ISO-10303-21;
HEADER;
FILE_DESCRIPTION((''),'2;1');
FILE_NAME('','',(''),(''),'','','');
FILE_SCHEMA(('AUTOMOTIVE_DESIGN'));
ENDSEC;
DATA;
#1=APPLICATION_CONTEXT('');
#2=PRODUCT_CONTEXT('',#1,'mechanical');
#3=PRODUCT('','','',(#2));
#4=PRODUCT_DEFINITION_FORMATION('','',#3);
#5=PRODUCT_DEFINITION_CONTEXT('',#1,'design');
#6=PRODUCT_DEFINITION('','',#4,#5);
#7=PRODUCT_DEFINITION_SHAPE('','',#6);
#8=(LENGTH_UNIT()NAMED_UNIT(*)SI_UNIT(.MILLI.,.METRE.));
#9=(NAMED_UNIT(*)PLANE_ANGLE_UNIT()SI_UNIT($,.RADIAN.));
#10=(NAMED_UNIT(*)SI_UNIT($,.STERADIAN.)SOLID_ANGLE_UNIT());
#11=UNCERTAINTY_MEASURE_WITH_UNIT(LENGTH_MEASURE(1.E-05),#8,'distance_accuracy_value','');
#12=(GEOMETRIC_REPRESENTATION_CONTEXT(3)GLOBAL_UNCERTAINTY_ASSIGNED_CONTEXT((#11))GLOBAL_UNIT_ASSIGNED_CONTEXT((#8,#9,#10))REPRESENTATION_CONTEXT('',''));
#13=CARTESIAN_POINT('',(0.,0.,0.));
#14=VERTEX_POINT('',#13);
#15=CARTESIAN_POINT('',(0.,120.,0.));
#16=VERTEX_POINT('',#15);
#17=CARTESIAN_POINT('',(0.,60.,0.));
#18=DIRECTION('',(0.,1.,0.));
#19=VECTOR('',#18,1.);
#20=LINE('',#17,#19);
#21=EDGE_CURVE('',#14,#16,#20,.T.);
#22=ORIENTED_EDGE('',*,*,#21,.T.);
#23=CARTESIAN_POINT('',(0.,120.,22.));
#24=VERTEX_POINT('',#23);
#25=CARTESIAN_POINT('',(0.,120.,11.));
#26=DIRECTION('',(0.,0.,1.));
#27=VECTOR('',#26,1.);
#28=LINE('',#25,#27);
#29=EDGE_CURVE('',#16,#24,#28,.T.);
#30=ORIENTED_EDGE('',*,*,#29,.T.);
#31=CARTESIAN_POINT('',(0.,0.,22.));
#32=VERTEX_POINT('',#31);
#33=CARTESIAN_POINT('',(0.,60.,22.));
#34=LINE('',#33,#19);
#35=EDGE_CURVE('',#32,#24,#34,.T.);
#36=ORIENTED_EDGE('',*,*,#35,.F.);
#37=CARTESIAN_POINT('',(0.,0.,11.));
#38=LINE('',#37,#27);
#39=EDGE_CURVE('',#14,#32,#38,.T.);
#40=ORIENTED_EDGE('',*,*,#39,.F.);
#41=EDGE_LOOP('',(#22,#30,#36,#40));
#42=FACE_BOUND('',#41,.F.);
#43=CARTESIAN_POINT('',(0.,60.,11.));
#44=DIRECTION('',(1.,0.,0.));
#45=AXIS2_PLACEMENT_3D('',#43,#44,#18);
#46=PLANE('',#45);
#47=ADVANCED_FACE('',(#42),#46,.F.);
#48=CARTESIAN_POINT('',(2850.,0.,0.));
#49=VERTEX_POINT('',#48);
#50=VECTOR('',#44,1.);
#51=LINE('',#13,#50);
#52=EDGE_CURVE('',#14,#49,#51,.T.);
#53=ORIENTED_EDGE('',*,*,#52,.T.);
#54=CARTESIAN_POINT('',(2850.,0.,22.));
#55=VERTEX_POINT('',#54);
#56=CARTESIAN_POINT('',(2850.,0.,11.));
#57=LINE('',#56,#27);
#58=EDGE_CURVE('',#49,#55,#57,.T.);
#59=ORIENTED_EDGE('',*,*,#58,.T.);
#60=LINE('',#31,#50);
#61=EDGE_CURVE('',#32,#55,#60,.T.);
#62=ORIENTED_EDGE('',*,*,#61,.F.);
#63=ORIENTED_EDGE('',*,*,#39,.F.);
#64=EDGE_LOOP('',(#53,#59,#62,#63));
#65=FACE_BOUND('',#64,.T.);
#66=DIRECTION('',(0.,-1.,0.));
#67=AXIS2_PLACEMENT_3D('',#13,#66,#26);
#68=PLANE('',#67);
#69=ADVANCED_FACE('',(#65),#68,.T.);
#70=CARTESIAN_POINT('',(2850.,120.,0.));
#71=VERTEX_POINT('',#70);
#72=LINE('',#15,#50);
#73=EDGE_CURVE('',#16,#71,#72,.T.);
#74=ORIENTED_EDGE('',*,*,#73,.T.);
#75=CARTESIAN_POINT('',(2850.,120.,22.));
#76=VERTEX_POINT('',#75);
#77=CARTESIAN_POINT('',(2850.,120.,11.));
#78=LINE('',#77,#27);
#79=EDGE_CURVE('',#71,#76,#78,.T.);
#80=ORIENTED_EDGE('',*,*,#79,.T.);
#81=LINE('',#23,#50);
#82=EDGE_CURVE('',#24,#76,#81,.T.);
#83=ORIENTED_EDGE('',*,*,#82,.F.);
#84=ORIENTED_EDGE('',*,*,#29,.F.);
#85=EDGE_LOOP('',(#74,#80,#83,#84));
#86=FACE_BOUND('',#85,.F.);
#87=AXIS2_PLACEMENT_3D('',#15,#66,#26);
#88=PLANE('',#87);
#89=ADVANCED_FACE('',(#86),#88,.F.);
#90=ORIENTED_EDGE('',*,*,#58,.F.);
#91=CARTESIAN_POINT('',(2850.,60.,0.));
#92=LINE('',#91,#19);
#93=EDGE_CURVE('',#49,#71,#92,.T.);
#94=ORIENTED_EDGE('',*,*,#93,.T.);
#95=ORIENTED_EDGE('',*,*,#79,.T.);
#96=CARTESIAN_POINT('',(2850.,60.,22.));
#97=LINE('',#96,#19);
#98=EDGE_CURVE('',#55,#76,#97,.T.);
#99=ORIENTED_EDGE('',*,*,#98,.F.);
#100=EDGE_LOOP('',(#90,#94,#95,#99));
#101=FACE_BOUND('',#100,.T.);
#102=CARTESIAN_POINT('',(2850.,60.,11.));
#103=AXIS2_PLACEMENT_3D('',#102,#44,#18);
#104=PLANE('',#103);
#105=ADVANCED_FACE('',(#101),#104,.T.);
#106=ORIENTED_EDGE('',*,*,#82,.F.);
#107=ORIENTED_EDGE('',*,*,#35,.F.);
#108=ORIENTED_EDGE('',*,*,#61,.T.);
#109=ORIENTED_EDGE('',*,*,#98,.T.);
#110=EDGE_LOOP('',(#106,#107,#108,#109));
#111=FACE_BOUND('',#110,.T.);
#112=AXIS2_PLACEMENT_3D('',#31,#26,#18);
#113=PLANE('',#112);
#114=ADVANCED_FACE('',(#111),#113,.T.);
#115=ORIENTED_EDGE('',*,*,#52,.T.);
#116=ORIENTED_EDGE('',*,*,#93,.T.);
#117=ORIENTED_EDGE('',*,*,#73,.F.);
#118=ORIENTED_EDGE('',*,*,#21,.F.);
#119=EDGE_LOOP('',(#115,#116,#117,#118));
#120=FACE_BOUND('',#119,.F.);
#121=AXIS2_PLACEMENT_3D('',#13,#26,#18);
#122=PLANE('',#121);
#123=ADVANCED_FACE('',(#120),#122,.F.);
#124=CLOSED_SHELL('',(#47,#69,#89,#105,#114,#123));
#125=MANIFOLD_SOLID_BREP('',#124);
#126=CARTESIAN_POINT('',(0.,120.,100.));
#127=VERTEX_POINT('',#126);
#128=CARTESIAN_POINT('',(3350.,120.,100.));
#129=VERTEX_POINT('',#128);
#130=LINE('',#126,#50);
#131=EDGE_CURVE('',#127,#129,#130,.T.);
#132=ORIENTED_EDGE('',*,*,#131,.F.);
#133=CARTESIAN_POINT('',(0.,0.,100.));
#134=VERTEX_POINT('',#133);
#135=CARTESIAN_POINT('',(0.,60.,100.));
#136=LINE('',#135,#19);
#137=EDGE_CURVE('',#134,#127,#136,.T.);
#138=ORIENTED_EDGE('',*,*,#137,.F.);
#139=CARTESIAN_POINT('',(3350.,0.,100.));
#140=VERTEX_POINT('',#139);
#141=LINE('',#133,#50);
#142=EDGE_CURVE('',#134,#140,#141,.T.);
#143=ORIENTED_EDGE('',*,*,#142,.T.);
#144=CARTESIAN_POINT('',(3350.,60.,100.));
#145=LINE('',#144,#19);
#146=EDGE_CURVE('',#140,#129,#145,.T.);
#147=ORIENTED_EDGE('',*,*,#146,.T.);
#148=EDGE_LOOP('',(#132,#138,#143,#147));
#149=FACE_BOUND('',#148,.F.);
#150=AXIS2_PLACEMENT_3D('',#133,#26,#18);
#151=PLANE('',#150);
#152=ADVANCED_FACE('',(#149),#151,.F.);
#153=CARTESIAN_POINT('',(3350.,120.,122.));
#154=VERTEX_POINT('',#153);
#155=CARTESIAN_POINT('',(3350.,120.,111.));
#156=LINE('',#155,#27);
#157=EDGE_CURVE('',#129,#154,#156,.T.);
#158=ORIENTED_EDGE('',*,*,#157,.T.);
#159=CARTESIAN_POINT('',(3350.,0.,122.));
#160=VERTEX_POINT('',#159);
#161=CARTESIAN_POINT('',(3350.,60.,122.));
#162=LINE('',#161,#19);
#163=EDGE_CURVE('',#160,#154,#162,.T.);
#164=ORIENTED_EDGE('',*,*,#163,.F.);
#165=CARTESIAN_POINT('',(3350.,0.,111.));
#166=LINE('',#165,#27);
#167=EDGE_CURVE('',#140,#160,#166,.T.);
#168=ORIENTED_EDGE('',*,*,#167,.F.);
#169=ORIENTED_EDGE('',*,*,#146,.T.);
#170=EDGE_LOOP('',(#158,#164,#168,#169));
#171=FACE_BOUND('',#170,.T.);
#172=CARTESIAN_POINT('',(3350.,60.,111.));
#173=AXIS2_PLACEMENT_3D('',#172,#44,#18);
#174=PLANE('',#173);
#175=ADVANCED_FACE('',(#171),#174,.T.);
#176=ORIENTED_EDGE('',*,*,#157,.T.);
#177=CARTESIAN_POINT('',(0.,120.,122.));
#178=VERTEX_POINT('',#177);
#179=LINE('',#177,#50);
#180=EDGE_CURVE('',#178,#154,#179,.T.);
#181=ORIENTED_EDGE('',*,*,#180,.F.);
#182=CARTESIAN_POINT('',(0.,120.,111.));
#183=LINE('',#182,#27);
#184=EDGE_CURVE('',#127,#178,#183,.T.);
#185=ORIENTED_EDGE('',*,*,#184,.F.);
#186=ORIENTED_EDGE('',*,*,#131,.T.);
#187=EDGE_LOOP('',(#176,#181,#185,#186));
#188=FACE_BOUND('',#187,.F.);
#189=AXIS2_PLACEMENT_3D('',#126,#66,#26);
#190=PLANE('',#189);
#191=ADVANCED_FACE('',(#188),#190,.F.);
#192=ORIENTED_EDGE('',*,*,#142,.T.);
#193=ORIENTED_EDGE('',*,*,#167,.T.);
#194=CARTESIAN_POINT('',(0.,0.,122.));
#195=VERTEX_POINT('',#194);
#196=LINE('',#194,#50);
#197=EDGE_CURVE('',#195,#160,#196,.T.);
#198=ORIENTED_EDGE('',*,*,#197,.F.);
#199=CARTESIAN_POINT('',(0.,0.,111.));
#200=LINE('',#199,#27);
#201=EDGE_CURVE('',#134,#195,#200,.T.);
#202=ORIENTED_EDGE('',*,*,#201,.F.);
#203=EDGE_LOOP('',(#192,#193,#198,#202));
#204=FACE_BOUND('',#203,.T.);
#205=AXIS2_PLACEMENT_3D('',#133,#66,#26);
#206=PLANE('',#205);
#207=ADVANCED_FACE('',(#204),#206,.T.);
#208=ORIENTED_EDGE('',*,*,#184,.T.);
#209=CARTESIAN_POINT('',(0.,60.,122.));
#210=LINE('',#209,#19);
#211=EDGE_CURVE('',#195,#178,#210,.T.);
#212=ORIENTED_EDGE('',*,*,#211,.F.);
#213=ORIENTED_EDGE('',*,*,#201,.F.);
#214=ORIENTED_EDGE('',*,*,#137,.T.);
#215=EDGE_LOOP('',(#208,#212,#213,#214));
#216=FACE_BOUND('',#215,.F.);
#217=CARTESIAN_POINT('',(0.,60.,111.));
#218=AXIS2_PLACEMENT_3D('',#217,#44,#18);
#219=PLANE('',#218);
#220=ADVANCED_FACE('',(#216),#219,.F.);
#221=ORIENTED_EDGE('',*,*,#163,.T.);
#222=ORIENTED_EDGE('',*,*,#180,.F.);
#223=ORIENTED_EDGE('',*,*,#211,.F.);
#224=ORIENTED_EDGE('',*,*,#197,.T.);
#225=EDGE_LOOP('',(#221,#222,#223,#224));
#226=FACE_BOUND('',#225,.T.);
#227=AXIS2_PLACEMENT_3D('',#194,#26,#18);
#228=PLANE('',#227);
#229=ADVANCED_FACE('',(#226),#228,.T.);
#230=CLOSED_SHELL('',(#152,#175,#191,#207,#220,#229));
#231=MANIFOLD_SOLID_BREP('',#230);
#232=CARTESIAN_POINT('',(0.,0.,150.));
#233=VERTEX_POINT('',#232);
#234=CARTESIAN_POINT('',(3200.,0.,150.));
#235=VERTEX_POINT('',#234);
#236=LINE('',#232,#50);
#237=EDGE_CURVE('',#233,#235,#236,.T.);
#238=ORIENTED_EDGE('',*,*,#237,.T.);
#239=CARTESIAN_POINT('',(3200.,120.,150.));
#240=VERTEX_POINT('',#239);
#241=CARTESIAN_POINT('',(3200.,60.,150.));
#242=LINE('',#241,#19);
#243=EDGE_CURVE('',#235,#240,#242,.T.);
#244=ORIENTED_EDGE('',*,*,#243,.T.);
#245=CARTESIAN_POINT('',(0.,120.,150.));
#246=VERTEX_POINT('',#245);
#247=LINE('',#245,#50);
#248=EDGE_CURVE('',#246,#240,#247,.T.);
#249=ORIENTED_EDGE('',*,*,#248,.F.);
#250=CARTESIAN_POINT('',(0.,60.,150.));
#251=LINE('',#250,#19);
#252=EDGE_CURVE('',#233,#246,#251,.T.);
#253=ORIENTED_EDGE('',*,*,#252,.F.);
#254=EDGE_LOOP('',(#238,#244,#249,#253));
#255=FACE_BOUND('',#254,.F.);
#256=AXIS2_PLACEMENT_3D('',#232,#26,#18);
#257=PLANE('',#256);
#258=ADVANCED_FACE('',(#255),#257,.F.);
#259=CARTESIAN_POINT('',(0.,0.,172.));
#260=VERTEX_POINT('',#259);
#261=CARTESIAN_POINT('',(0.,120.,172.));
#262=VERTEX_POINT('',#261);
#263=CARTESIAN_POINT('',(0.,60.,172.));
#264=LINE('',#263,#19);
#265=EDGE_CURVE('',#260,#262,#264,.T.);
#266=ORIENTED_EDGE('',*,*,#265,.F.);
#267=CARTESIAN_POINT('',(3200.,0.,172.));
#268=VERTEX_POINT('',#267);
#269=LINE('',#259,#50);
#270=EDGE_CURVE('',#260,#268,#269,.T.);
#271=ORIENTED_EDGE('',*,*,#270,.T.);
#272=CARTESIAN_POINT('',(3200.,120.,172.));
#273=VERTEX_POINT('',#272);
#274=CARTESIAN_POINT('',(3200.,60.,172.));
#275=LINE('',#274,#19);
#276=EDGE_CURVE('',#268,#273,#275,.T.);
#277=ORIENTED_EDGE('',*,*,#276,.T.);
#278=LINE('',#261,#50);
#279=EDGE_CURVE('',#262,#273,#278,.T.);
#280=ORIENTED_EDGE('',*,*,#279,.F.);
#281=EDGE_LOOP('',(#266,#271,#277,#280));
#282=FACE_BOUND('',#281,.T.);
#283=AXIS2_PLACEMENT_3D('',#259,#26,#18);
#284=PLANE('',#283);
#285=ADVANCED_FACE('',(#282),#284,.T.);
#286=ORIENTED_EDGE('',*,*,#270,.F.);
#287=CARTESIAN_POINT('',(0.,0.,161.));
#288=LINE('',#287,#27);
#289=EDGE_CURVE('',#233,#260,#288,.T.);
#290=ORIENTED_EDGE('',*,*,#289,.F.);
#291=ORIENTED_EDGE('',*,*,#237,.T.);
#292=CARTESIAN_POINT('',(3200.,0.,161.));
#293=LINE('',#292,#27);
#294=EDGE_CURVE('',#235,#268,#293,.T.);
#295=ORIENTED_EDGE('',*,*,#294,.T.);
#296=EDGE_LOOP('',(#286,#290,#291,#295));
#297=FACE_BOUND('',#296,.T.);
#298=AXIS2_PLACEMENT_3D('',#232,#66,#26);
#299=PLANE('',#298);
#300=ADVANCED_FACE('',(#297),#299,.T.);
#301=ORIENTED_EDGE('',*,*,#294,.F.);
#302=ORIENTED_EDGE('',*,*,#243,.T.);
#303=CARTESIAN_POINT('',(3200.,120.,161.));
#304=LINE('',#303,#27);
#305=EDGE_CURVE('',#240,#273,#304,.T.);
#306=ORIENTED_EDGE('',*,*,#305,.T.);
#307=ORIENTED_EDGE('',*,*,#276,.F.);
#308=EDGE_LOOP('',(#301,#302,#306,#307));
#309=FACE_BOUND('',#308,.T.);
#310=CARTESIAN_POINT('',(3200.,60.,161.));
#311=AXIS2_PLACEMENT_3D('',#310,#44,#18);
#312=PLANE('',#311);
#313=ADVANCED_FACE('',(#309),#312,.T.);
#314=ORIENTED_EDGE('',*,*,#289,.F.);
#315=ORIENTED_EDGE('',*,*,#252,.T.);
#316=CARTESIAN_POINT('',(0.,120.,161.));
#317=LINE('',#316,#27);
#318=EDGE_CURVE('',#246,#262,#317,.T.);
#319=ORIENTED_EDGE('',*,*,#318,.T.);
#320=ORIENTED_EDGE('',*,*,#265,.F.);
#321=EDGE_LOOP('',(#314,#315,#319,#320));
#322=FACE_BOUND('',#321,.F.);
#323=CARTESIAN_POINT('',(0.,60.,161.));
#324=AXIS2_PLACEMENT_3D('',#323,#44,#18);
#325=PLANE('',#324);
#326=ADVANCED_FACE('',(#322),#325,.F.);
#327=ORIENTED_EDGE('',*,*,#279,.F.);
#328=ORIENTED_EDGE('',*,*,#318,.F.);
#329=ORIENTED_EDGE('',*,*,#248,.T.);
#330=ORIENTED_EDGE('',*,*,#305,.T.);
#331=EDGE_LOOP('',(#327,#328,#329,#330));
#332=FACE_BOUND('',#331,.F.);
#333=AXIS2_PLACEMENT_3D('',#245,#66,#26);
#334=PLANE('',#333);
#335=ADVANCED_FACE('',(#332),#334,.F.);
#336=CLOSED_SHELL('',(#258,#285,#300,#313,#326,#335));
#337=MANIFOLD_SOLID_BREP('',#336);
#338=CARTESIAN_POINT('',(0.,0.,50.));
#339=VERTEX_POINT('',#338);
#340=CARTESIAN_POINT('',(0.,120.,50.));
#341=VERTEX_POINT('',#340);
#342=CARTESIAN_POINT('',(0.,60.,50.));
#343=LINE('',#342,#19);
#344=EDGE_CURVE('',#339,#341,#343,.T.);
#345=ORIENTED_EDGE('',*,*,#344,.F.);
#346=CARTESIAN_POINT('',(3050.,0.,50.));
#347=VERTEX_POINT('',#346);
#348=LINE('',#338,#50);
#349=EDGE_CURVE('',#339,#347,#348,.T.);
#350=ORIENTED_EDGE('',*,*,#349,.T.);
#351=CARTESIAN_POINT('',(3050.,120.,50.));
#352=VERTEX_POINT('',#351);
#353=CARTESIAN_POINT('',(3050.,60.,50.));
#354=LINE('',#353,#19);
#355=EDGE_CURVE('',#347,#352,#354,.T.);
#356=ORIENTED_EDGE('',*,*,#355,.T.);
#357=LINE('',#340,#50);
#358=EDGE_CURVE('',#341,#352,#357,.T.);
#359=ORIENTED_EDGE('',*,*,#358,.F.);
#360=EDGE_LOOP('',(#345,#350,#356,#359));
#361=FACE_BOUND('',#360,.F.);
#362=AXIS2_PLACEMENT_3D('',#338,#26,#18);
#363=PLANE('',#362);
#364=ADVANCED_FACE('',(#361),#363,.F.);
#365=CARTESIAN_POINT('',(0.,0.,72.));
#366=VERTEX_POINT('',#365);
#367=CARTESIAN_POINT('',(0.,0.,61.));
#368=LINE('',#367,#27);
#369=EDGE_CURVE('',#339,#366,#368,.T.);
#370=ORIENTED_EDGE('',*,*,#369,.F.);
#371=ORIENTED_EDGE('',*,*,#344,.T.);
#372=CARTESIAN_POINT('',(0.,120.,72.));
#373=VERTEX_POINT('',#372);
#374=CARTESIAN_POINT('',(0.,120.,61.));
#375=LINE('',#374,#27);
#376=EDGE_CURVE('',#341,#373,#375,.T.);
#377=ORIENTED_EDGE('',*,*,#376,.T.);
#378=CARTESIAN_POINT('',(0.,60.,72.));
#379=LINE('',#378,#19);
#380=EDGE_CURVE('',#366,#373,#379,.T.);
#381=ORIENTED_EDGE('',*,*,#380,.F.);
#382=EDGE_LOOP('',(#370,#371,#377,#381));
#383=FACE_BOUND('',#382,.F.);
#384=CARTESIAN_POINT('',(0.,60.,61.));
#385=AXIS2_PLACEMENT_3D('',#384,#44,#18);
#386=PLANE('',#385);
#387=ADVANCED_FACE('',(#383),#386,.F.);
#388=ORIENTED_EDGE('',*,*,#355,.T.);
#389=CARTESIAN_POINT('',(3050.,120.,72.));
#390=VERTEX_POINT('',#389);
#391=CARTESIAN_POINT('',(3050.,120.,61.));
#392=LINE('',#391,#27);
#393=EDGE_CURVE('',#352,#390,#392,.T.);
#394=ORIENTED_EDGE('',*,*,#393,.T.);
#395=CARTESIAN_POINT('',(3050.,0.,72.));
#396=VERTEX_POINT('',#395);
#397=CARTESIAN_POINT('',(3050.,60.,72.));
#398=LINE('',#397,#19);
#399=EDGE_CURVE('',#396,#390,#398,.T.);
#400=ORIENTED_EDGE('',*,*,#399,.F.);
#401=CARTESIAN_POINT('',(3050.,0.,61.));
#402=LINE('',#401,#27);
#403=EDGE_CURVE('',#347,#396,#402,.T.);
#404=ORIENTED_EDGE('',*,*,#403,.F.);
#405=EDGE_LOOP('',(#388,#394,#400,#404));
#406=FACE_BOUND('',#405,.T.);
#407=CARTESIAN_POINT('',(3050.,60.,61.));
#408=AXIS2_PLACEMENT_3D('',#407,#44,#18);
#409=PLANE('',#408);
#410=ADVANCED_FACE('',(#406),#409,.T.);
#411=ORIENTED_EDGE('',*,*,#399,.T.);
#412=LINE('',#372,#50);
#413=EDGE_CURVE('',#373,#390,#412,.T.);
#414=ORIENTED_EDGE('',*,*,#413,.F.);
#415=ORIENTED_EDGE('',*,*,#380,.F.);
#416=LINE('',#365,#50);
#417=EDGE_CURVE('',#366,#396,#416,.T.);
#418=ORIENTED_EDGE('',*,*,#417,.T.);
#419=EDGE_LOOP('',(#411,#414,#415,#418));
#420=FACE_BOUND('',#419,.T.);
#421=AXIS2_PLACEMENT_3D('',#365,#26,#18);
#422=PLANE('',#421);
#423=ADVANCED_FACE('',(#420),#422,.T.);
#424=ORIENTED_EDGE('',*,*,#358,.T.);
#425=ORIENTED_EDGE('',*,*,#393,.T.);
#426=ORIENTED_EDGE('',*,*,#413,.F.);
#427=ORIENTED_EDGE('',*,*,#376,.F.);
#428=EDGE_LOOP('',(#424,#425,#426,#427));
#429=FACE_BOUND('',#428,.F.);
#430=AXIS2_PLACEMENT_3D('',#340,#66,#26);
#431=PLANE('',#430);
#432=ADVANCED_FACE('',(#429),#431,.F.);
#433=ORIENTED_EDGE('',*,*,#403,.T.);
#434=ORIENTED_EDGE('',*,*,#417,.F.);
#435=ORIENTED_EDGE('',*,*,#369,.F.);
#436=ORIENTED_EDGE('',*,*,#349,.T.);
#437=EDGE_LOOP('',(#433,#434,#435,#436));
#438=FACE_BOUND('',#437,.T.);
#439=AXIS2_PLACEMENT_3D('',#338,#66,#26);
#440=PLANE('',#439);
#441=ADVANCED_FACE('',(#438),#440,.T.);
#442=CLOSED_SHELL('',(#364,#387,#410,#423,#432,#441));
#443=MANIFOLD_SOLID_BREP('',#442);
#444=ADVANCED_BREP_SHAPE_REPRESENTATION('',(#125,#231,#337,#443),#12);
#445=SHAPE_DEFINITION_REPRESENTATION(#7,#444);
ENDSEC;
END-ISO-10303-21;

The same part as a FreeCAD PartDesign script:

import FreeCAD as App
import Part
import Sketcher
Q = App.Units.Quantity

doc = App.newDocument("Part")
params = doc.addObject("Spreadsheet::Sheet", "Params")
for row, (alias, value) in enumerate([
    ("sketch1_width", "120 mm"),
    ("sketch1_height", "22 mm"),
    ("pad1_length", "2850 mm"),
    ("sketch2_width", "120 mm"),
    ("sketch2_height", "22 mm"),
    ("pad2_length", "3050 mm"),
    ("sketch3_width", "120 mm"),
    ("sketch3_height", "22 mm"),
    ("pad3_length", "3350 mm"),
    ("sketch4_width", "120 mm"),
    ("sketch4_height", "22 mm"),
    ("pad4_length", "3200 mm"),
], start=1):
    params.set(f"A{row}", alias)
    params.set(f"B{row}", "=" + value)
    params.setAlias(f"B{row}", alias)

body = doc.addObject("PartDesign::Body", "Body")

# Sketch on YZ plane
sketch1 = doc.addObject("Sketcher::SketchObject", "Sketch")
body.addObject(sketch1)
sketch1.AttachmentSupport = (doc.YZ_Plane, [""])
sketch1.MapMode = "FlatFace"
sketch1.addGeometry([
    Part.LineSegment(App.Vector(0, 22, 0), App.Vector(0, 0, 0)),
    Part.LineSegment(App.Vector(0, 0, 0), App.Vector(120, 0, 0)),
    Part.LineSegment(App.Vector(120, 0, 0), App.Vector(120, 22, 0)),
    Part.LineSegment(App.Vector(120, 22, 0), App.Vector(0, 22, 0)),
], False)
sketch1.addConstraint([
    Sketcher.Constraint("Coincident", 0, 2, 1, 1),
    Sketcher.Constraint("Coincident", 1, 2, 2, 1),
    Sketcher.Constraint("Coincident", 2, 2, 3, 1),
    Sketcher.Constraint("Coincident", 3, 2, 0, 1),
    Sketcher.Constraint("Vertical", 0),
    Sketcher.Constraint("Horizontal", 1),
    Sketcher.Constraint("Vertical", 2),
    Sketcher.Constraint("Horizontal", 3),
    Sketcher.Constraint("Coincident", 0, 2, -1, 1),
    Sketcher.Constraint("DistanceX", 1, 1, 1, 2, Q("120 mm")),
    Sketcher.Constraint("DistanceY", 0, 2, 0, 1, Q("22 mm")),
])
sketch1.setExpression("Constraints[9]", "Params.sketch1_width")
sketch1.setExpression("Constraints[10]", "Params.sketch1_height")
pad1 = doc.addObject("PartDesign::Pad", "Pad")
body.addObject(pad1)
pad1.Profile = sketch1
pad1.setExpression("Length", "Params.pad1_length")
body2 = doc.addObject("PartDesign::Body", "Body001")

# Sketch on YZ plane
sketch2 = doc.addObject("Sketcher::SketchObject", "Sketch001")
body2.addObject(sketch2)
sketch2.AttachmentSupport = (doc.getObject("YZ_Plane001"), [""])
sketch2.MapMode = "FlatFace"
sketch2.addGeometry([
    Part.LineSegment(App.Vector(0, 72, 0), App.Vector(0, 50, 0)),
    Part.LineSegment(App.Vector(0, 50, 0), App.Vector(120, 50, 0)),
    Part.LineSegment(App.Vector(120, 50, 0), App.Vector(120, 72, 0)),
    Part.LineSegment(App.Vector(120, 72, 0), App.Vector(0, 72, 0)),
], False)
sketch2.addConstraint([
    Sketcher.Constraint("Coincident", 0, 2, 1, 1),
    Sketcher.Constraint("Coincident", 1, 2, 2, 1),
    Sketcher.Constraint("Coincident", 2, 2, 3, 1),
    Sketcher.Constraint("Coincident", 3, 2, 0, 1),
    Sketcher.Constraint("Vertical", 0),
    Sketcher.Constraint("Horizontal", 1),
    Sketcher.Constraint("Vertical", 2),
    Sketcher.Constraint("Horizontal", 3),
    Sketcher.Constraint("PointOnObject", 0, 2, -2),
    Sketcher.Constraint("DistanceX", 1, 1, 1, 2, Q("120 mm")),
    Sketcher.Constraint("DistanceY", 0, 2, 0, 1, Q("22 mm")),
    Sketcher.Constraint("DistanceY", -1, 1, 0, 2, Q("50 mm")),
])
sketch2.setExpression("Constraints[9]", "Params.sketch2_width")
sketch2.setExpression("Constraints[10]", "Params.sketch2_height")
pad2 = doc.addObject("PartDesign::Pad", "Pad001")
body2.addObject(pad2)
pad2.Profile = sketch2
pad2.setExpression("Length", "Params.pad2_length")
body3 = doc.addObject("PartDesign::Body", "Body002")

# Sketch on YZ plane
sketch3 = doc.addObject("Sketcher::SketchObject", "Sketch002")
body3.addObject(sketch3)
sketch3.AttachmentSupport = (doc.getObject("YZ_Plane002"), [""])
sketch3.MapMode = "FlatFace"
sketch3.addGeometry([
    Part.LineSegment(App.Vector(0, 122, 0), App.Vector(0, 100, 0)),
    Part.LineSegment(App.Vector(0, 100, 0), App.Vector(120, 100, 0)),
    Part.LineSegment(App.Vector(120, 100, 0), App.Vector(120, 122, 0)),
    Part.LineSegment(App.Vector(120, 122, 0), App.Vector(0, 122, 0)),
], False)
sketch3.addConstraint([
    Sketcher.Constraint("Coincident", 0, 2, 1, 1),
    Sketcher.Constraint("Coincident", 1, 2, 2, 1),
    Sketcher.Constraint("Coincident", 2, 2, 3, 1),
    Sketcher.Constraint("Coincident", 3, 2, 0, 1),
    Sketcher.Constraint("Vertical", 0),
    Sketcher.Constraint("Horizontal", 1),
    Sketcher.Constraint("Vertical", 2),
    Sketcher.Constraint("Horizontal", 3),
    Sketcher.Constraint("PointOnObject", 0, 2, -2),
    Sketcher.Constraint("DistanceX", 1, 1, 1, 2, Q("120 mm")),
    Sketcher.Constraint("DistanceY", 0, 2, 0, 1, Q("22 mm")),
    Sketcher.Constraint("DistanceY", -1, 1, 0, 2, Q("100 mm")),
])
sketch3.setExpression("Constraints[9]", "Params.sketch3_width")
sketch3.setExpression("Constraints[10]", "Params.sketch3_height")
pad3 = doc.addObject("PartDesign::Pad", "Pad002")
body3.addObject(pad3)
pad3.Profile = sketch3
pad3.setExpression("Length", "Params.pad3_length")
body4 = doc.addObject("PartDesign::Body", "Body003")

# Sketch on YZ plane
sketch4 = doc.addObject("Sketcher::SketchObject", "Sketch003")
body4.addObject(sketch4)
sketch4.AttachmentSupport = (doc.getObject("YZ_Plane003"), [""])
sketch4.MapMode = "FlatFace"
sketch4.addGeometry([
    Part.LineSegment(App.Vector(0, 172, 0), App.Vector(0, 150, 0)),
    Part.LineSegment(App.Vector(0, 150, 0), App.Vector(120, 150, 0)),
    Part.LineSegment(App.Vector(120, 150, 0), App.Vector(120, 172, 0)),
    Part.LineSegment(App.Vector(120, 172, 0), App.Vector(0, 172, 0)),
], False)
sketch4.addConstraint([
    Sketcher.Constraint("Coincident", 0, 2, 1, 1),
    Sketcher.Constraint("Coincident", 1, 2, 2, 1),
    Sketcher.Constraint("Coincident", 2, 2, 3, 1),
    Sketcher.Constraint("Coincident", 3, 2, 0, 1),
    Sketcher.Constraint("Vertical", 0),
    Sketcher.Constraint("Horizontal", 1),
    Sketcher.Constraint("Vertical", 2),
    Sketcher.Constraint("Horizontal", 3),
    Sketcher.Constraint("PointOnObject", 0, 2, -2),
    Sketcher.Constraint("DistanceX", 1, 1, 1, 2, Q("120 mm")),
    Sketcher.Constraint("DistanceY", 0, 2, 0, 1, Q("22 mm")),
    Sketcher.Constraint("DistanceY", -1, 1, 0, 2, Q("150 mm")),
])
sketch4.setExpression("Constraints[9]", "Params.sketch4_width")
sketch4.setExpression("Constraints[10]", "Params.sketch4_height")
pad4 = doc.addObject("PartDesign::Pad", "Pad003")
body4.addObject(pad4)
pad4.Profile = sketch4
pad4.setExpression("Length", "Params.pad4_length")

doc.recompute()
